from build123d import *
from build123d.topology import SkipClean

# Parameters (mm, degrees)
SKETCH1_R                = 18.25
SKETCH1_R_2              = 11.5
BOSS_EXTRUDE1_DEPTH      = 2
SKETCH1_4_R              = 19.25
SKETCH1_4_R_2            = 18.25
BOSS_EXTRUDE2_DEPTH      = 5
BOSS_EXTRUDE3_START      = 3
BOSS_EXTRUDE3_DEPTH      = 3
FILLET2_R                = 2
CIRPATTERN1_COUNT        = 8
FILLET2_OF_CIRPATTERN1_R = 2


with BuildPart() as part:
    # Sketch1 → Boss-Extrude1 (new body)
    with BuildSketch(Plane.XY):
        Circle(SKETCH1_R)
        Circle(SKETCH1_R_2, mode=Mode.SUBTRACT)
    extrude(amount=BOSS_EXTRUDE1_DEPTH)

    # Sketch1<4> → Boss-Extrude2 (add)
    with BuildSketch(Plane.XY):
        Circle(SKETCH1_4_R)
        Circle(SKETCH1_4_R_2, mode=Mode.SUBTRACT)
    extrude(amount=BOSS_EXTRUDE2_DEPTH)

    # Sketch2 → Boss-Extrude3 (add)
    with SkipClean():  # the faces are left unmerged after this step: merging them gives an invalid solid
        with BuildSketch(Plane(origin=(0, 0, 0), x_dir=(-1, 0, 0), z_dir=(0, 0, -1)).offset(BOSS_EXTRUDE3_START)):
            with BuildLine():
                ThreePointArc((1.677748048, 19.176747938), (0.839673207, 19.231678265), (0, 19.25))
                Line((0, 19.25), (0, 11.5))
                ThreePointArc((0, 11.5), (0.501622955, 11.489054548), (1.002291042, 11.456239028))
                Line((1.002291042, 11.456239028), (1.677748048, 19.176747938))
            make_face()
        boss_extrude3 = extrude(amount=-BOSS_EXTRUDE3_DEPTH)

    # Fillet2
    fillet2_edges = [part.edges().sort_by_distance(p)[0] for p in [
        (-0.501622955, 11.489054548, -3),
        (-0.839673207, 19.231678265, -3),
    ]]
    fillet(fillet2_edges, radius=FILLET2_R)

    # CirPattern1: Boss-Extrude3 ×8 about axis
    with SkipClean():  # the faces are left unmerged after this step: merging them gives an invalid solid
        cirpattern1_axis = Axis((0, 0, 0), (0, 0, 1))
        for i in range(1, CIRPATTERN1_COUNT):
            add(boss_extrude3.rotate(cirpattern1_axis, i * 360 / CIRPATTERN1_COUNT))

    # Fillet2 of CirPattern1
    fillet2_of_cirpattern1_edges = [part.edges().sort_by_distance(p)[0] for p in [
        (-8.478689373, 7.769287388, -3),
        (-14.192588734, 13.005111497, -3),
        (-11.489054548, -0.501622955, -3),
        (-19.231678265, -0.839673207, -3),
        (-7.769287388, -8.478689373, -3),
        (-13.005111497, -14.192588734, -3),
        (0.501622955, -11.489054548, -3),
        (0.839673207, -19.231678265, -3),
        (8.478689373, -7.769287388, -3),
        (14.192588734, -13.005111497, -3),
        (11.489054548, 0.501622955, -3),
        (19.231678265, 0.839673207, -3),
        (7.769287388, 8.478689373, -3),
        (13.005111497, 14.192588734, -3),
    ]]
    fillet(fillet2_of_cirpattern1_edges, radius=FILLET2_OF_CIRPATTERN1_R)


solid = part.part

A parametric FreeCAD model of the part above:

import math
import FreeCAD as App
import Part
import Sketcher
from FreeCAD import Vector
Q = App.Units.Quantity


def edges_at(feature, points):
    """Names of the edges that pass closest to the given points."""
    edges = feature.Shape.Edges
    near = lambda p: min(range(len(edges)), key=lambda i: edges[i].distToShape(Part.Vertex(*p))[0])
    return sorted({f"Edge{near(p) + 1}" for p in points})

doc = App.newDocument("Part")
body = doc.addObject("PartDesign::Body", "Body")

# Sketch on XY plane
sketch1 = doc.addObject("Sketcher::SketchObject", "Sketch")
body.addObject(sketch1)
sketch1.AttachmentSupport = (doc.XY_Plane, [""])
sketch1.MapMode = "FlatFace"
sketch1.addGeometry(Part.Circle(Vector(0, 0, 0), Vector(0, 0, 1), 18), False)
sketch1.addGeometry(Part.Circle(Vector(0, 0, 0), Vector(0, 0, 1), 12), False)
sketch1.addConstraint(Sketcher.Constraint("Coincident", 0, 3, -1, 1))
sketch1.addConstraint(Sketcher.Constraint("Coincident", 1, 3, -1, 1))
sketch1.addConstraint(Sketcher.Constraint("Diameter", 1, 23.0))
sketch1.addConstraint(Sketcher.Constraint("Diameter", 0, 36.5))
pad1 = doc.addObject("PartDesign::Pad", "Pad")
body.addObject(pad1)
pad1.Profile = sketch1
pad1.Length = 2

# Sketch on XY plane
sketch2 = doc.addObject("Sketcher::SketchObject", "Sketch001")
body.addObject(sketch2)
sketch2.AttachmentSupport = (doc.XY_Plane, [""])
sketch2.MapMode = "FlatFace"
sketch2.addGeometry(Part.Circle(Vector(0, 0, 0), Vector(0, 0, 1), 19), False)
sketch2.addGeometry(Part.Circle(Vector(0, 0, 0), Vector(0, 0, 1), 18), False)
sketch2.addConstraint(Sketcher.Constraint("Coincident", 0, 3, -1, 1))
sketch2.addConstraint(Sketcher.Constraint("Coincident", 1, 3, -1, 1))
sketch2.addConstraint(Sketcher.Constraint("Diameter", 0, 38.5))
sketch2.addConstraint(Sketcher.Constraint("Diameter", 1, 36.5))
pad2 = doc.addObject("PartDesign::Pad", "Pad001")
body.addObject(pad2)
pad2.Profile = sketch2
pad2.Length = 5

# Sketch on XY plane
sketch3 = doc.addObject("Sketcher::SketchObject", "Sketch002")
body.addObject(sketch3)
sketch3.AttachmentSupport = (doc.XY_Plane, [""])
sketch3.MapMode = "FlatFace"
sketch3.AttachmentOffset = App.Placement(Vector(0, 0, -3), App.Rotation())
sketch3.addGeometry(Part.ArcOfCircle(Part.Circle(Vector(0, 0, 0), Vector(0, 0, 1), 19.3), math.radians(90), math.radians(95)), False)
sketch3.addGeometry(Part.LineSegment(Vector(0, 19.2, 0), Vector(0, 11.5, 0)), False)
sketch3.addGeometry(Part.ArcOfCircle(Part.Circle(Vector(0, 0, 0), Vector(0, 0, 1), 11.5), math.radians(90), math.radians(95)), False)
sketch3.addGeometry(Part.LineSegment(Vector(-1, 11.5, 0), Vector(-1.7, 19.2, 0)), False)
sketch3.addConstraint(Sketcher.Constraint("Coincident", 0, 1, 1, 1))
sketch3.addConstraint(Sketcher.Constraint("Coincident", 1, 2, 2, 1))
sketch3.addConstraint(Sketcher.Constraint("Coincident", 2, 2, 3, 1))
sketch3.addConstraint(Sketcher.Constraint("Coincident", 3, 2, 0, 2))
sketch3.addConstraint(Sketcher.Constraint("Vertical", 1))
sketch3.addConstraint(Sketcher.Constraint("Coincident", 0, 3, -1, 1))
sketch3.addConstraint(Sketcher.Constraint("Coincident", 2, 3, -1, 1))
sketch3.addConstraint(Sketcher.Constraint("PointOnObject", 0, 1, -2))
sketch3.addConstraint(Sketcher.Constraint("Radius", 2, 11.5))
sketch3.addConstraint(Sketcher.Constraint("Angle", 3, Q("95 deg")))
sketch3.addConstraint(Sketcher.Constraint("Radius", 0, 19.25))
sketch3.addConstraint(Sketcher.Constraint("DistanceX", 2, 2, -1, 1, 1.002291))
pad3 = doc.addObject("PartDesign::Pad", "Pad002")
body.addObject(pad3)
pad3.Profile = sketch3
pad3.Length = 3
doc.recompute()

fillet = doc.addObject("PartDesign::Fillet", "Fillet")
body.addObject(fillet)
fillet.Base = (pad3, edges_at(pad3, [(-0.502, 11.489, -3), (-0.84, 19.232, -3)]))
fillet.Radius = 2
doc.recompute()

polarpattern = doc.addObject("PartDesign::PolarPattern", "PolarPattern")
body.addObject(polarpattern)
polarpattern.Originals = [pad3]
polarpattern.Axis = (doc.Z_Axis, [""])
polarpattern.Angle = 360
polarpattern.Occurrences = 8
body.Tip = polarpattern
doc.recompute()

fillet2 = doc.addObject("PartDesign::Fillet", "Fillet001")
body.addObject(fillet2)
fillet2.Base = (polarpattern, edges_at(polarpattern, [
    (-8.479, 7.769, -3),
    (-14.193, 13.005, -3),
    (-11.489, -0.502, -3),
    (-19.232, -0.84, -3),
    (-7.769, -8.479, -3),
    (-13.005, -14.193, -3),
    (0.502, -11.489, -3),
    (0.84, -19.232, -3),
    (8.479, -7.769, -3),
    (14.193, -13.005, -3),
    (11.489, 0.502, -3),
    (19.232, 0.84, -3),
    (7.769, 8.479, -3),
    (13.005, 14.193, -3),
]))
fillet2.Radius = 2

doc.recompute()
